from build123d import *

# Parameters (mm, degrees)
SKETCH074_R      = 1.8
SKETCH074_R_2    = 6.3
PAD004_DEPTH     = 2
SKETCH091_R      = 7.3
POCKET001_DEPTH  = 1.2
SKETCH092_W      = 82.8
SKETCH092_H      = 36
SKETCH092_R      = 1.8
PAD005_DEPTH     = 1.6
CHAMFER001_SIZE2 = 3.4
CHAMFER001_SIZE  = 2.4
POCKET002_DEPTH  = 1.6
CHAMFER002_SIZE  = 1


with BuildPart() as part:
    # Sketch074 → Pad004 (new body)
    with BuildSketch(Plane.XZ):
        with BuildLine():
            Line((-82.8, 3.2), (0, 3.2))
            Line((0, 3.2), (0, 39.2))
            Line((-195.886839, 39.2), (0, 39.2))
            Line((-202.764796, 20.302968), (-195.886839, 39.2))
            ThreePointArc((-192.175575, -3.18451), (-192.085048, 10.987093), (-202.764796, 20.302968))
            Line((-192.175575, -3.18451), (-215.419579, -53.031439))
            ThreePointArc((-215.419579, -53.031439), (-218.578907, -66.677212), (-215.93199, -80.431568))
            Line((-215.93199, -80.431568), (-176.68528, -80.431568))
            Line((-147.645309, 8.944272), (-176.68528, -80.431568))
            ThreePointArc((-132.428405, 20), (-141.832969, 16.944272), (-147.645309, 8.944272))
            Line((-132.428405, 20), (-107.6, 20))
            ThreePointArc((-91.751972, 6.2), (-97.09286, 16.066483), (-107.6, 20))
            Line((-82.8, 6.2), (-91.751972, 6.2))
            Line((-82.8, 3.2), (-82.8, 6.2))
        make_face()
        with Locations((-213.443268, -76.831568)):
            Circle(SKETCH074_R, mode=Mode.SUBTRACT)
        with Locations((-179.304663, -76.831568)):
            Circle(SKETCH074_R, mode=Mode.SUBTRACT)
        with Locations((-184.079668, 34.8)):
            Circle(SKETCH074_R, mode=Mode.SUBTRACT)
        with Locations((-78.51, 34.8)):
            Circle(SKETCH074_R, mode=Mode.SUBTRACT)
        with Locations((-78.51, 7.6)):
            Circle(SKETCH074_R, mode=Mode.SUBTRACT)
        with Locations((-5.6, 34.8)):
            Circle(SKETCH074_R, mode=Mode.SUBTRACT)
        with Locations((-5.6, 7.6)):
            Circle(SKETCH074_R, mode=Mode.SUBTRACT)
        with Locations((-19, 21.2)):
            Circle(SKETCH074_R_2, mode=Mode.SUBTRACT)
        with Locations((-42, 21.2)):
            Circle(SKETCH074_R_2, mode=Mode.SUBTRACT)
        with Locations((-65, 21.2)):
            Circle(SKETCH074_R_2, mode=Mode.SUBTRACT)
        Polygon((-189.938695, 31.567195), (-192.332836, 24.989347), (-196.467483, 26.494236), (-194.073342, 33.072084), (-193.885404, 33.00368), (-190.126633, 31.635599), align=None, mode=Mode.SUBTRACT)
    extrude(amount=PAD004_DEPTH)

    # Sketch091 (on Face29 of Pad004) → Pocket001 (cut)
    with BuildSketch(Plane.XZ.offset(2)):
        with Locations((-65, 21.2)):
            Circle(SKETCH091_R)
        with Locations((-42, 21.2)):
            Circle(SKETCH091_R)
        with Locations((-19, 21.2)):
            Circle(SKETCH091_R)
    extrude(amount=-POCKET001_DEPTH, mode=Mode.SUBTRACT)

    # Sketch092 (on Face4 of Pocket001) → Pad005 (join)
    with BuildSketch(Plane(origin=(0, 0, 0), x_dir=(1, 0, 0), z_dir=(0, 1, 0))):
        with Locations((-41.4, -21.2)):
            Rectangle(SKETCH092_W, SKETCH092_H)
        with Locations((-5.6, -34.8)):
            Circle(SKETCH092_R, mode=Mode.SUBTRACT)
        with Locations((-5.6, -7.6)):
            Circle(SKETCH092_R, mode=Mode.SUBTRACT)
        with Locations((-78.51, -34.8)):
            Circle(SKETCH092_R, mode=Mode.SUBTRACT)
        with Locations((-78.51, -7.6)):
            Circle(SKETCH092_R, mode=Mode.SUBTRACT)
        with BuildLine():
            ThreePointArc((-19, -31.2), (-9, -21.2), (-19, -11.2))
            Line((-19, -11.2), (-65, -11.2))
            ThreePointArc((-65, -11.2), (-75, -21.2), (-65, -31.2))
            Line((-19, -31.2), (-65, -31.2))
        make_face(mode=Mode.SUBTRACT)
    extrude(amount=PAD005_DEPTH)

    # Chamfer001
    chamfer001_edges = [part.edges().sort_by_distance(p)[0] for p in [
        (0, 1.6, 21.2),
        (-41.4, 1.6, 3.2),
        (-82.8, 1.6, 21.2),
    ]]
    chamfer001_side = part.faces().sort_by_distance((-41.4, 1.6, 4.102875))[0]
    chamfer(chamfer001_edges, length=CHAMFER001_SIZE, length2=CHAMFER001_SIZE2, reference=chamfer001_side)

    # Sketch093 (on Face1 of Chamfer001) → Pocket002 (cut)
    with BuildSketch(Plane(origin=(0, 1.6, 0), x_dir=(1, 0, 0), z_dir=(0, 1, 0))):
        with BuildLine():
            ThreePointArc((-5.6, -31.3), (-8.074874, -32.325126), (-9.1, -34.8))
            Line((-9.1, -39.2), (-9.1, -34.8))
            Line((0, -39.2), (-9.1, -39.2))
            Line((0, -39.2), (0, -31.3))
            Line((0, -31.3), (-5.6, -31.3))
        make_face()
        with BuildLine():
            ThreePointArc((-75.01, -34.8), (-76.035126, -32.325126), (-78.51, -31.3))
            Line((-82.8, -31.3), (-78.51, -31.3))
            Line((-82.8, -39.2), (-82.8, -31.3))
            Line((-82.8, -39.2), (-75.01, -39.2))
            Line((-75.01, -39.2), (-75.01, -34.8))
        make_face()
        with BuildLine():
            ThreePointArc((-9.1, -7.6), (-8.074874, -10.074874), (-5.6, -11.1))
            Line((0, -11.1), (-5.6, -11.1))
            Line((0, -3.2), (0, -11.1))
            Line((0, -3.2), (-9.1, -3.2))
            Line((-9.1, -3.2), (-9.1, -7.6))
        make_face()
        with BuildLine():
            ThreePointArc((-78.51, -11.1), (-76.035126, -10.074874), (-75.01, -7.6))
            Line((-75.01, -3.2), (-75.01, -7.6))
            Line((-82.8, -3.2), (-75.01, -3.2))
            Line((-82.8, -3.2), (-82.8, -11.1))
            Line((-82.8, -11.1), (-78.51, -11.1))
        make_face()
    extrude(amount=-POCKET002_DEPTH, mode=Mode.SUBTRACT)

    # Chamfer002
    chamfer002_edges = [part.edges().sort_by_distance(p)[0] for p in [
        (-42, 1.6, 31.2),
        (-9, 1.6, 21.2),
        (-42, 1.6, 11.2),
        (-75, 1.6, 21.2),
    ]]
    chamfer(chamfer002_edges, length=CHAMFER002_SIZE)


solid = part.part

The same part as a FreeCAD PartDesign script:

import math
import FreeCAD as App
import Part
import Sketcher

V = App.Vector
Q = App.Units.Quantity


def edges_at(feature, points):
    """Names of the edges that pass closest to the given points."""
    edges = feature.Shape.Edges
    near = lambda p: min(range(len(edges)), key=lambda i: edges[i].distToShape(Part.Vertex(*p))[0])
    return sorted({f"Edge{near(p) + 1}" for p in points})


def add_polygon(sketch, points):
    """Adds a closed chain of lines whose ends are joined by coincident constraints."""
    first, n = sketch.GeometryCount, len(points)
    for a, b in zip(points, points[1:] + points[:1]):
        sketch.addGeometry(Part.LineSegment(App.Vector(*a, 0), App.Vector(*b, 0)), False)
    for i in range(n):
        sketch.addConstraint(Sketcher.Constraint("Coincident", first + i, 2, first + (i + 1) % n, 1))

doc = App.newDocument("Part")
body = doc.addObject("PartDesign::Body", "Body")

sketch1 = body.newObject("Sketcher::SketchObject", "Sketch")
sketch1.AttachmentSupport = (doc.getObject("XZ_Plane"), [""])
sketch1.MapMode = "FlatFace"
sketch1.addGeometry(Part.LineSegment(V(-82.8, 3.2, 0), V(0, 3.2, 0)), False)
sketch1.addGeometry(Part.LineSegment(V(0, 3.2, 0), V(0, 39.2, 0)), False)
sketch1.addGeometry(Part.LineSegment(V(0, 39.2, 0), V(-195.886839, 39.2, 0)), False)
sketch1.addGeometry(Part.LineSegment(V(-195.886839, 39.2, 0), V(-202.764796, 20.302968, 0)), False)
sketch1.addGeometry(Part.ArcOfCircle(Part.Circle(V(-207.582806, 4.000001, 0), V(0, 0, 1), 16.999999), math.radians(-25.000003), math.radians(73.536028)), False)
sketch1.addGeometry(Part.LineSegment(V(-192.175575, -3.18451, 0), V(-215.419579, -53.031439, 0)), False)
sketch1.addGeometry(Part.ArcOfCircle(Part.Circle(V(-184.801502, -67.308885, 0), V(0, 0, 1), 33.783311), math.radians(154.999997), math.radians(202.857271)), False)
sketch1.addGeometry(Part.LineSegment(V(-215.93199, -80.431568, 0), V(-176.68528, -80.431568, 0)), False)
sketch1.addGeometry(Part.LineSegment(V(-176.68528, -80.431568, 0), V(-147.645309, 8.944272, 0)), False)
sketch1.addGeometry(Part.ArcOfCircle(Part.Circle(V(-132.428405, 4.000001, 0), V(0, 0, 1), 15.999999), math.radians(89.999999), math.radians(162.000002)), False)
sketch1.addGeometry(Part.LineSegment(V(-132.428405, 20, 0), V(-107.6, 20, 0)), False)
sketch1.addGeometry(Part.ArcOfCircle(Part.Circle(V(-107.6, 4.000001, 0), V(0, 0, 1), 15.999999), math.radians(7.903205), math.radians(90.000002)), False)
sketch1.addGeometry(Part.LineSegment(V(-91.751972, 6.2, 0), V(-82.8, 6.2, 0)), False)
sketch1.addGeometry(Part.LineSegment(V(-82.8, 6.2, 0), V(-82.8, 3.2, 0)), False)
sketch1.addGeometry(Part.Circle(V(-213.443268, -76.831568, 0), V(0, 0, 1), 1.8), False)
sketch1.addGeometry(Part.Circle(V(-179.304663, -76.831568, 0), V(0, 0, 1), 1.8), False)
add_polygon(sketch1, [(-190.126633, 31.635599), (-189.938695, 31.567195), (-192.332836, 24.989347), (-196.467483, 26.494236), (-194.073342, 33.072084), (-193.885404, 33.00368)])
sketch1.addGeometry(Part.Circle(V(-184.079668, 34.8, 0), V(0, 0, 1), 1.8), False)
sketch1.addGeometry(Part.Circle(V(-78.51, 7.6, 0), V(0, 0, 1), 1.8), False)
sketch1.addGeometry(Part.Circle(V(-5.6, 7.6, 0), V(0, 0, 1), 1.8), False)
sketch1.addGeometry(Part.Circle(V(-65, 21.2, 0), V(0, 0, 1), 6.3), False)
sketch1.addGeometry(Part.Circle(V(-78.51, 34.8, 0), V(0, 0, 1), 1.8), False)
sketch1.addGeometry(Part.Circle(V(-42, 21.2, 0), V(0, 0, 1), 6.3), False)
sketch1.addGeometry(Part.Circle(V(-19, 21.2, 0), V(0, 0, 1), 6.3), False)
sketch1.addGeometry(Part.Circle(V(-5.6, 34.8, 0), V(0, 0, 1), 1.8), False)
sketch1.addConstraint([
    Sketcher.Constraint("Coincident", 0, 2, 1, 1),
    Sketcher.Constraint("Coincident", 1, 2, 2, 1),
    Sketcher.Constraint("Coincident", 2, 2, 3, 1),
    Sketcher.Constraint("Coincident", 3, 2, 4, 2),
    Sketcher.Constraint("Tangent", 4, 1, 5, 1),
    Sketcher.Constraint("Tangent", 5, 2, 6, 1),
    Sketcher.Constraint("Coincident", 6, 2, 7, 1),
    Sketcher.Constraint("Coincident", 7, 2, 8, 1),
    Sketcher.Constraint("Tangent", 8, 2, 9, 2),
    Sketcher.Constraint("Tangent", 9, 1, 10, 1),
    Sketcher.Constraint("Tangent", 10, 2, 11, 2),
    Sketcher.Constraint("Coincident", 11, 1, 12, 1),
    Sketcher.Constraint("Coincident", 12, 2, 13, 1),
    Sketcher.Constraint("Coincident", 13, 2, 0, 1),
    Sketcher.Constraint("Horizontal", 0),
    Sketcher.Constraint("Vertical", 1),
    Sketcher.Constraint("Horizontal", 2),
    Sketcher.Constraint("Horizontal", 7),
    Sketcher.Constraint("Horizontal", 10),
    Sketcher.Constraint("Horizontal", 12),
    Sketcher.Constraint("Vertical", 13),
    Sketcher.Constraint("Equal", 9, 11),
    Sketcher.Constraint("Equal", 14, 15),
    Sketcher.Constraint("Equal", 15, 22),
    Sketcher.Constraint("Equal", 22, 23),
    Sketcher.Constraint("Equal", 23, 24),
    Sketcher.Constraint("Equal", 24, 26),
    Sketcher.Constraint("Equal", 25, 27),
    Sketcher.Constraint("Equal", 27, 28),
    Sketcher.Constraint("Equal", 26, 29),
    Sketcher.Constraint("PointOnObject", 0, 2, -2),
    Sketcher.Constraint("Perpendicular", 3, 16),
    Sketcher.Constraint("Perpendicular", 16, 17),
    Sketcher.Constraint("Perpendicular", 17, 18),
    Sketcher.Constraint("Perpendicular", 18, 19),
    Sketcher.Constraint("Perpendicular", 19, 20),
    Sketcher.Constraint("Parallel", 20, 21),
    Sketcher.Constraint("Horizontal", 4, 3, 9, 3),
    Sketcher.Constraint("Horizontal", 14, 3, 15, 3),
    Sketcher.Constraint("Horizontal", 23, 3, 24, 3),
    Sketcher.Constraint("Horizontal", 22, 3, 26, 3),
    Sketcher.Constraint("Horizontal", 25, 3, 27, 3),
    Sketcher.Constraint("Horizontal", 27, 3, 28, 3),
    Sketcher.Constraint("Horizontal", 26, 3, 29, 3),
    Sketcher.Constraint("Vertical", 23, 3, 26, 3),
    Sketcher.Constraint("Vertical", 24, 3, 29, 3),
    Sketcher.Constraint("Equal", 16, 20),
    Sketcher.Constraint("Radius", 4, Q("16.999999 mm")),
    Sketcher.Constraint("Radius", 9, Q("15.999999 mm")),
    Sketcher.Constraint("Diameter", 14, Q("3.6 mm")),
    Sketcher.Constraint("Diameter", 25, Q("12.6 mm")),
    Sketcher.Constraint("DistanceY", 1, 1, 1, 2, Q("36 mm")),
    Sketcher.Constraint("DistanceY", 13, 2, 13, 1, Q("3 mm")),
    Sketcher.Constraint("Angle", 3, Q("-110 deg")),
    Sketcher.Constraint("Angle", 5, Q("-114.999999 deg")),
    Sketcher.Constraint("Angle", 8, Q("72 deg")),
    Sketcher.Constraint("Distance", 5, Q("55 mm")),
    Sketcher.Constraint("Distance", 17, Q("7 mm")),
    Sketcher.Constraint("Distance", 21, Q("4.000001 mm")),
    Sketcher.Constraint("DistanceX", 0, 1, 0, 2, Q("82.8 mm")),
    Sketcher.Constraint("DistanceY", -1, 1, 4, 3, Q("4.000001 mm")),
    Sketcher.Constraint("DistanceX", 25, 3, -1, 1, Q("65 mm")),
    Sketcher.Constraint("DistanceX", 27, 3, -1, 1, Q("42 mm")),
    Sketcher.Constraint("DistanceX", 28, 3, -1, 1, Q("19 mm")),
    Sketcher.Constraint("DistanceX", 11, 3, 24, 3, Q("102 mm")),
    Sketcher.Constraint("DistanceY", 0, 2, 28, 3, Q("18 mm")),
    Sketcher.Constraint("Distance", 16, Q("0.199999 mm")),
    Sketcher.Constraint("DistanceX", 11, 3, -1, 1, Q("107.6 mm")),
    Sketcher.Constraint("DistanceY", -1, 1, 22, 3, Q("34.8 mm")),
    Sketcher.Constraint("DistanceY", -1, 1, 23, 3, Q("7.6 mm")),
    Sketcher.Constraint("DistanceY", -1, 1, 25, 3, Q("21.2 mm")),
    Sketcher.Constraint("DistanceY", 6, 2, 14, 3, Q("3.6 mm")),
    Sketcher.Constraint("DistanceX", 23, 3, -1, 1, Q("78.51 mm")),
    Sketcher.Constraint("Radius", 6, Q("33.783311 mm")),
    Sketcher.Constraint("Distance", 3, Q("20.109801 mm")),
    Sketcher.Constraint("DistanceX", 2, 2, 2, 1, Q("195.886839 mm")),
    Sketcher.Constraint("DistanceX", 7, 1, 7, 2, Q("39.24671 mm")),
    Sketcher.Constraint("DistanceY", -1, 1, 21, 2, Q("31.635599 mm")),
    Sketcher.Constraint("DistanceX", 4, 3, 9, 3, Q("75.154401 mm")),
    Sketcher.Constraint("DistanceX", 3, 2, 16, 2, Q("12.826101 mm")),
    Sketcher.Constraint("DistanceX", 22, 3, -1, 1, Q("184.079668 mm")),
    Sketcher.Constraint("DistanceX", 14, 3, 4, 3, Q("5.860462 mm")),
    Sketcher.Constraint("DistanceX", 6, 3, 15, 3, Q("5.496839 mm")),
])
pad1 = body.newObject("PartDesign::Pad", "Pad")
pad1.Profile = sketch1
pad1.Length = 2

sketch2 = body.newObject("Sketcher::SketchObject", "Sketch001")
sketch2.AttachmentSupport = (doc.getObject("XZ_Plane"), [""])
sketch2.MapMode = "FlatFace"
sketch2.AttachmentOffset = App.Placement(V(0, 0, 2), App.Rotation())
sketch2.addGeometry([
    Part.Circle(V(-65, 21.2, 0), V(0, 0, 1), 7.3),
    Part.Circle(V(-42, 21.2, 0), V(0, 0, 1), 7.3),
    Part.Circle(V(-19, 21.2, 0), V(0, 0, 1), 7.3),
], False)
sketch2.addConstraint([
    Sketcher.Constraint("Equal", 0, 1),
    Sketcher.Constraint("Equal", 1, 2),
    Sketcher.Constraint("Horizontal", 0, 3, 1, 3),
    Sketcher.Constraint("Horizontal", 1, 3, 2, 3),
    Sketcher.Constraint("Diameter", 0, Q("14.6 mm")),
    Sketcher.Constraint("DistanceX", 0, 3, -1, 1, Q("65 mm")),
    Sketcher.Constraint("DistanceX", 1, 3, -1, 1, Q("42 mm")),
    Sketcher.Constraint("DistanceX", 2, 3, -1, 1, Q("19 mm")),
    Sketcher.Constraint("DistanceY", -1, 1, 0, 3, Q("21.2 mm")),
])
pocket1 = body.newObject("PartDesign::Pocket", "Pocket")
pocket1.Profile = sketch2
pocket1.Length = 1.2

sketch3 = body.newObject("Sketcher::SketchObject", "Sketch002")
sketch3.AttachmentSupport = (doc.getObject("XZ_Plane"), [""])
sketch3.MapMode = "FlatFace"
add_polygon(sketch3, [(-82.8, 3.2), (-82.8, 39.2), (0, 39.2), (0, 3.2)])
sketch3.addGeometry(Part.Circle(V(-78.51, 34.8, 0), V(0, 0, 1), 1.8), False)
sketch3.addGeometry(Part.Circle(V(-5.6, 34.8, 0), V(0, 0, 1), 1.8), False)
sketch3.addGeometry(Part.Circle(V(-78.51, 7.6, 0), V(0, 0, 1), 1.8), False)
sketch3.addGeometry(Part.ArcOfCircle(Part.Circle(V(-19, 21.2, 0), V(0, 0, 1), 10), math.radians(-90), math.radians(90)), False)
sketch3.addGeometry(Part.LineSegment(V(-19, 31.2, 0), V(-65, 31.2, 0)), False)
sketch3.addGeometry(Part.ArcOfCircle(Part.Circle(V(-65, 21.2, 0), V(0, 0, 1), 10), math.radians(90), math.radians(270)), False)
sketch3.addGeometry(Part.LineSegment(V(-65, 11.2, 0), V(-19, 11.2, 0)), False)
sketch3.addGeometry(Part.Circle(V(-5.6, 7.6, 0), V(0, 0, 1), 1.8), False)
sketch3.addConstraint([
    Sketcher.Constraint("Tangent", 7, 2, 8, 1),
    Sketcher.Constraint("Tangent", 8, 2, 9, 1),
    Sketcher.Constraint("Tangent", 9, 2, 10, 1),
    Sketcher.Constraint("Tangent", 10, 2, 7, 1),
    Sketcher.Constraint("Vertical", 0),
    Sketcher.Constraint("Horizontal", 1),
    Sketcher.Constraint("Vertical", 2),
    Sketcher.Constraint("Horizontal", 3),
    Sketcher.Constraint("Horizontal", 8),
    Sketcher.Constraint("Horizontal", 10),
    Sketcher.Constraint("Equal", 4, 5),
    Sketcher.Constraint("Equal", 5, 6),
    Sketcher.Constraint("Equal", 6, 11),
    Sketcher.Constraint("PointOnObject", 1, 2, -2),
    Sketcher.Constraint("Horizontal", 4, 3, 5, 3),
    Sketcher.Constraint("Horizontal", 6, 3, 11, 3),
    Sketcher.Constraint("Vertical", 4, 3, 6, 3),
    Sketcher.Constraint("Vertical", 5, 3, 11, 3),
    Sketcher.Constraint("Radius", 7, Q("10 mm")),
    Sketcher.Constraint("Diameter", 4, Q("3.6 mm")),
    Sketcher.Constraint("DistanceX", 8, 2, 8, 1, Q("46 mm")),
    Sketcher.Constraint("DistanceY", 0, 1, 0, 2, Q("36 mm")),
    Sketcher.Constraint("DistanceX", 1, 1, 1, 2, Q("82.8 mm")),
    Sketcher.Constraint("DistanceX", 7, 3, -1, 1, Q("19 mm")),
    Sketcher.Constraint("DistanceY", 9, 3, 0, 2, Q("18 mm")),
    Sketcher.Constraint("DistanceY", -1, 1, 4, 3, Q("34.8 mm")),
    Sketcher.Constraint("DistanceX", 5, 3, -1, 1, Q("5.6 mm")),
    Sketcher.Constraint("DistanceY", -1, 1, 6, 3, Q("7.6 mm")),
    Sketcher.Constraint("DistanceY", -1, 1, 7, 3, Q("21.2 mm")),
    Sketcher.Constraint("DistanceX", 4, 3, -1, 1, Q("78.51 mm")),
])
pad2 = body.newObject("PartDesign::Pad", "Pad001")
pad2.Profile = sketch3
pad2.Length = 1.6
pad2.Reversed = True
doc.recompute()

chamfer = body.newObject("PartDesign::Chamfer", "Chamfer")
chamfer.Base = (pad2, edges_at(pad2, [(0, 1.6, 21.2), (-41.4, 1.6, 3.2), (-82.8, 1.6, 21.2)]))
chamfer.ChamferType = "Two distances"
chamfer.Size = 2.4
chamfer.Size2 = 3.4

sketch4 = body.newObject("Sketcher::SketchObject", "Sketch003")
sketch4.AttachmentSupport = (doc.getObject("XZ_Plane"), [""])
sketch4.MapMode = "FlatFace"
sketch4.AttachmentOffset = App.Placement(V(0, 0, -1.6), App.Rotation())
sketch4.addGeometry([
    Part.ArcOfCircle(Part.Circle(V(-5.600001, 34.799999, 0), V(0, 0, 1), 3.499999), math.radians(179.999985), math.radians(270.000015)),
    Part.LineSegment(V(-9.1, 34.8, 0), V(-9.1, 39.2, 0)),
    Part.LineSegment(V(-9.1, 39.2, 0), V(0, 39.2, 0)),
    Part.LineSegment(V(0, 39.2, 0), V(0, 31.3, 0)),
    Part.LineSegment(V(0, 31.3, 0), V(-5.6, 31.3, 0)),
    Part.ArcOfCircle(Part.Circle(V(-78.509999, 34.799999, 0), V(0, 0, 1), 3.499999), math.radians(-90.000015), math.radians(0.000015)),
    Part.LineSegment(V(-78.51, 31.3, 0), V(-82.8, 31.3, 0)),
    Part.LineSegment(V(-82.8, 31.3, 0), V(-82.8, 39.2, 0)),
    Part.LineSegment(V(-82.8, 39.2, 0), V(-75.01, 39.2, 0)),
    Part.LineSegment(V(-75.01, 39.2, 0), V(-75.01, 34.8, 0)),
    Part.ArcOfCircle(Part.Circle(V(-5.600001, 7.600001, 0), V(0, 0, 1), 3.499999), math.radians(89.999985), math.radians(180.000015)),
    Part.LineSegment(V(-5.6, 11.1, 0), V(0, 11.1, 0)),
    Part.LineSegment(V(0, 11.1, 0), V(0, 3.2, 0)),
    Part.LineSegment(V(0, 3.2, 0), V(-9.1, 3.2, 0)),
    Part.LineSegment(V(-9.1, 3.2, 0), V(-9.1, 7.6, 0)),
    Part.ArcOfCircle(Part.Circle(V(-78.509999, 7.600001, 0), V(0, 0, 1), 3.499999), math.radians(-0.000015), math.radians(90.000015)),
    Part.LineSegment(V(-75.01, 7.6, 0), V(-75.01, 3.2, 0)),
    Part.LineSegment(V(-75.01, 3.2, 0), V(-82.8, 3.2, 0)),
    Part.LineSegment(V(-82.8, 3.2, 0), V(-82.8, 11.1, 0)),
    Part.LineSegment(V(-82.8, 11.1, 0), V(-78.51, 11.1, 0)),
], False)
sketch4.addConstraint([
    Sketcher.Constraint("Tangent", 0, 1, 1, 1),
    Sketcher.Constraint("Coincident", 1, 2, 2, 1),
    Sketcher.Constraint("Coincident", 2, 2, 3, 1),
    Sketcher.Constraint("Coincident", 3, 2, 4, 1),
    Sketcher.Constraint("Tangent", 4, 2, 0, 2),
    Sketcher.Constraint("Tangent", 5, 1, 6, 1),
    Sketcher.Constraint("Coincident", 6, 2, 7, 1),
    Sketcher.Constraint("Coincident", 7, 2, 8, 1),
    Sketcher.Constraint("Coincident", 8, 2, 9, 1),
    Sketcher.Constraint("Tangent", 9, 2, 5, 2),
    Sketcher.Constraint("Tangent", 10, 1, 11, 1),
    Sketcher.Constraint("Coincident", 11, 2, 12, 1),
    Sketcher.Constraint("Coincident", 12, 2, 13, 1),
    Sketcher.Constraint("Coincident", 13, 2, 14, 1),
    Sketcher.Constraint("Tangent", 14, 2, 10, 2),
    Sketcher.Constraint("Tangent", 15, 1, 16, 1),
    Sketcher.Constraint("Coincident", 16, 2, 17, 1),
    Sketcher.Constraint("Coincident", 17, 2, 18, 1),
    Sketcher.Constraint("Coincident", 18, 2, 19, 1),
    Sketcher.Constraint("Tangent", 19, 2, 15, 2),
    Sketcher.Constraint("Vertical", 1),
    Sketcher.Constraint("Horizontal", 2),
    Sketcher.Constraint("Vertical", 3),
    Sketcher.Constraint("Horizontal", 4),
    Sketcher.Constraint("Horizontal", 6),
    Sketcher.Constraint("Vertical", 7),
    Sketcher.Constraint("Horizontal", 8),
    Sketcher.Constraint("Vertical", 9),
    Sketcher.Constraint("Horizontal", 11),
    Sketcher.Constraint("Vertical", 12),
    Sketcher.Constraint("Horizontal", 13),
    Sketcher.Constraint("Vertical", 14),
    Sketcher.Constraint("Vertical", 16),
    Sketcher.Constraint("Horizontal", 17),
    Sketcher.Constraint("Vertical", 18),
    Sketcher.Constraint("Horizontal", 19),
    Sketcher.Constraint("Equal", 0, 5),
    Sketcher.Constraint("Equal", 5, 10),
    Sketcher.Constraint("Equal", 10, 15),
    Sketcher.Constraint("PointOnObject", 2, 2, -2),
    Sketcher.Constraint("PointOnObject", 11, 2, -2),
    Sketcher.Constraint("Horizontal", 0, 3, 5, 3),
    Sketcher.Constraint("Horizontal", 10, 3, 15, 3),
    Sketcher.Constraint("Horizontal", 2, 2, 7, 2),
    Sketcher.Constraint("Horizontal", 13, 2, 16, 2),
    Sketcher.Constraint("Vertical", 0, 3, 10, 3),
    Sketcher.Constraint("Vertical", 5, 3, 15, 3),
    Sketcher.Constraint("Vertical", 7, 2, 17, 2),
    Sketcher.Constraint("Equal", 7, 12),
    Sketcher.Constraint("Radius", 0, Q("3.499999 mm")),
    Sketcher.Constraint("DistanceX", 2, 1, 2, 2, Q("9.1 mm")),
    Sketcher.Constraint("DistanceY", 1, 1, 1, 2, Q("4.4 mm")),
    Sketcher.Constraint("DistanceX", 6, 2, 6, 1, Q("4.29 mm")),
    Sketcher.Constraint("DistanceY", -1, 1, 0, 3, Q("34.799999 mm")),
    Sketcher.Constraint("DistanceY", -1, 1, 10, 3, Q("7.600001 mm")),
    Sketcher.Constraint("DistanceX", 6, 2, -1, 1, Q("82.8 mm")),
])
pocket2 = body.newObject("PartDesign::Pocket", "Pocket001")
pocket2.Profile = sketch4
pocket2.Length = 1.6
pocket2.Reversed = True
doc.recompute()

chamfer2 = body.newObject("PartDesign::Chamfer", "Chamfer001")
chamfer2.Base = (pocket2, edges_at(pocket2, [
    (-42, 1.6, 31.2),
    (-9, 1.6, 21.2),
    (-42, 1.6, 11.2),
    (-75, 1.6, 21.2),
]))
chamfer2.Size = 1

doc.recompute()
